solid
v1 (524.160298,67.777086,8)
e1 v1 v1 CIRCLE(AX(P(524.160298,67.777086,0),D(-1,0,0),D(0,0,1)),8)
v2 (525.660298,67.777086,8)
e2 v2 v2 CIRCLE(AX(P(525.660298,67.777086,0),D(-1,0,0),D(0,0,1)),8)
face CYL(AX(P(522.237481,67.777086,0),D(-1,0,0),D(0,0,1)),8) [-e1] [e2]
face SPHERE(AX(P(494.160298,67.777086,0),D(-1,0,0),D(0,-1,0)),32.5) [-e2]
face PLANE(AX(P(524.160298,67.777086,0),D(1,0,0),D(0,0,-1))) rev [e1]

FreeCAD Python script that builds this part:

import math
import FreeCAD as App
import Part
import Sketcher
from FreeCAD import Vector

doc = App.newDocument("Part")
body = doc.addObject("PartDesign::Body", "Body")

sketch1 = body.newObject("Sketcher::SketchObject", "Sketch")
sketch1.AttachmentSupport = (doc.getObject("XY_Plane"), [""])
sketch1.MapMode = "FlatFace"
sketch1.addGeometry(Part.LineSegment(Vector(524.160298, 75.777086, 0), Vector(524.160298, 67.777086, 0)), False)
sketch1.addGeometry(Part.LineSegment(Vector(524.160298, 67.777086, 0), Vector(526.660298, 67.777086, 0)), False)
sketch1.addGeometry(Part.ArcOfCircle(Part.Circle(Vector(494.160298, 67.777086, 0), Vector(0, 0, 1), 32.5), math.radians(0), math.radians(14.250033)), False)
sketch1.addGeometry(Part.LineSegment(Vector(525.660298, 75.777086, 0), Vector(524.160298, 75.777086, 0)), False)
sketch1.addGeometry(Part.LineSegment(Vector(494.160298, 67.777086, 0), Vector(526.660298, 67.777086, 0)), True)
sketch1.addConstraint(Sketcher.Constraint("Coincident", 0, 2, 1, 1))
sketch1.addConstraint(Sketcher.Constraint("Coincident", 1, 2, 2, 1))
sketch1.addConstraint(Sketcher.Constraint("Coincident", 2, 2, 3, 1))
sketch1.addConstraint(Sketcher.Constraint("Coincident", 3, 2, 0, 1))
sketch1.addConstraint(Sketcher.Constraint("Vertical", 0))
sketch1.addConstraint(Sketcher.Constraint("Horizontal", 1))
sketch1.addConstraint(Sketcher.Constraint("Horizontal", 3))
sketch1.addConstraint(Sketcher.Constraint("Horizontal", 4))
sketch1.addConstraint(Sketcher.Constraint("Coincident", 4, 1, 2, 3))
sketch1.addConstraint(Sketcher.Constraint("Coincident", 4, 2, 1, 2))
sketch1.addConstraint(Sketcher.Constraint("Radius", 2, 32.5))
sketch1.addConstraint(Sketcher.Constraint("DistanceY", 0, 2, 0, 1, 8.0))
sketch1.addConstraint(Sketcher.Constraint("DistanceX", 1, 1, 1, 2, 2.5))
sketch1.addConstraint(Sketcher.Constraint("DistanceX", -1, 1, 2, 3, 494.160298))
sketch1.addConstraint(Sketcher.Constraint("DistanceY", -1, 1, 2, 3, 67.777086))
revolution = body.newObject("PartDesign::Revolution", "Revolution")
revolution.Profile = sketch1
revolution.ReferenceAxis = (sketch1, ["Axis0"])
revolution.Angle = 360

doc.recompute()
